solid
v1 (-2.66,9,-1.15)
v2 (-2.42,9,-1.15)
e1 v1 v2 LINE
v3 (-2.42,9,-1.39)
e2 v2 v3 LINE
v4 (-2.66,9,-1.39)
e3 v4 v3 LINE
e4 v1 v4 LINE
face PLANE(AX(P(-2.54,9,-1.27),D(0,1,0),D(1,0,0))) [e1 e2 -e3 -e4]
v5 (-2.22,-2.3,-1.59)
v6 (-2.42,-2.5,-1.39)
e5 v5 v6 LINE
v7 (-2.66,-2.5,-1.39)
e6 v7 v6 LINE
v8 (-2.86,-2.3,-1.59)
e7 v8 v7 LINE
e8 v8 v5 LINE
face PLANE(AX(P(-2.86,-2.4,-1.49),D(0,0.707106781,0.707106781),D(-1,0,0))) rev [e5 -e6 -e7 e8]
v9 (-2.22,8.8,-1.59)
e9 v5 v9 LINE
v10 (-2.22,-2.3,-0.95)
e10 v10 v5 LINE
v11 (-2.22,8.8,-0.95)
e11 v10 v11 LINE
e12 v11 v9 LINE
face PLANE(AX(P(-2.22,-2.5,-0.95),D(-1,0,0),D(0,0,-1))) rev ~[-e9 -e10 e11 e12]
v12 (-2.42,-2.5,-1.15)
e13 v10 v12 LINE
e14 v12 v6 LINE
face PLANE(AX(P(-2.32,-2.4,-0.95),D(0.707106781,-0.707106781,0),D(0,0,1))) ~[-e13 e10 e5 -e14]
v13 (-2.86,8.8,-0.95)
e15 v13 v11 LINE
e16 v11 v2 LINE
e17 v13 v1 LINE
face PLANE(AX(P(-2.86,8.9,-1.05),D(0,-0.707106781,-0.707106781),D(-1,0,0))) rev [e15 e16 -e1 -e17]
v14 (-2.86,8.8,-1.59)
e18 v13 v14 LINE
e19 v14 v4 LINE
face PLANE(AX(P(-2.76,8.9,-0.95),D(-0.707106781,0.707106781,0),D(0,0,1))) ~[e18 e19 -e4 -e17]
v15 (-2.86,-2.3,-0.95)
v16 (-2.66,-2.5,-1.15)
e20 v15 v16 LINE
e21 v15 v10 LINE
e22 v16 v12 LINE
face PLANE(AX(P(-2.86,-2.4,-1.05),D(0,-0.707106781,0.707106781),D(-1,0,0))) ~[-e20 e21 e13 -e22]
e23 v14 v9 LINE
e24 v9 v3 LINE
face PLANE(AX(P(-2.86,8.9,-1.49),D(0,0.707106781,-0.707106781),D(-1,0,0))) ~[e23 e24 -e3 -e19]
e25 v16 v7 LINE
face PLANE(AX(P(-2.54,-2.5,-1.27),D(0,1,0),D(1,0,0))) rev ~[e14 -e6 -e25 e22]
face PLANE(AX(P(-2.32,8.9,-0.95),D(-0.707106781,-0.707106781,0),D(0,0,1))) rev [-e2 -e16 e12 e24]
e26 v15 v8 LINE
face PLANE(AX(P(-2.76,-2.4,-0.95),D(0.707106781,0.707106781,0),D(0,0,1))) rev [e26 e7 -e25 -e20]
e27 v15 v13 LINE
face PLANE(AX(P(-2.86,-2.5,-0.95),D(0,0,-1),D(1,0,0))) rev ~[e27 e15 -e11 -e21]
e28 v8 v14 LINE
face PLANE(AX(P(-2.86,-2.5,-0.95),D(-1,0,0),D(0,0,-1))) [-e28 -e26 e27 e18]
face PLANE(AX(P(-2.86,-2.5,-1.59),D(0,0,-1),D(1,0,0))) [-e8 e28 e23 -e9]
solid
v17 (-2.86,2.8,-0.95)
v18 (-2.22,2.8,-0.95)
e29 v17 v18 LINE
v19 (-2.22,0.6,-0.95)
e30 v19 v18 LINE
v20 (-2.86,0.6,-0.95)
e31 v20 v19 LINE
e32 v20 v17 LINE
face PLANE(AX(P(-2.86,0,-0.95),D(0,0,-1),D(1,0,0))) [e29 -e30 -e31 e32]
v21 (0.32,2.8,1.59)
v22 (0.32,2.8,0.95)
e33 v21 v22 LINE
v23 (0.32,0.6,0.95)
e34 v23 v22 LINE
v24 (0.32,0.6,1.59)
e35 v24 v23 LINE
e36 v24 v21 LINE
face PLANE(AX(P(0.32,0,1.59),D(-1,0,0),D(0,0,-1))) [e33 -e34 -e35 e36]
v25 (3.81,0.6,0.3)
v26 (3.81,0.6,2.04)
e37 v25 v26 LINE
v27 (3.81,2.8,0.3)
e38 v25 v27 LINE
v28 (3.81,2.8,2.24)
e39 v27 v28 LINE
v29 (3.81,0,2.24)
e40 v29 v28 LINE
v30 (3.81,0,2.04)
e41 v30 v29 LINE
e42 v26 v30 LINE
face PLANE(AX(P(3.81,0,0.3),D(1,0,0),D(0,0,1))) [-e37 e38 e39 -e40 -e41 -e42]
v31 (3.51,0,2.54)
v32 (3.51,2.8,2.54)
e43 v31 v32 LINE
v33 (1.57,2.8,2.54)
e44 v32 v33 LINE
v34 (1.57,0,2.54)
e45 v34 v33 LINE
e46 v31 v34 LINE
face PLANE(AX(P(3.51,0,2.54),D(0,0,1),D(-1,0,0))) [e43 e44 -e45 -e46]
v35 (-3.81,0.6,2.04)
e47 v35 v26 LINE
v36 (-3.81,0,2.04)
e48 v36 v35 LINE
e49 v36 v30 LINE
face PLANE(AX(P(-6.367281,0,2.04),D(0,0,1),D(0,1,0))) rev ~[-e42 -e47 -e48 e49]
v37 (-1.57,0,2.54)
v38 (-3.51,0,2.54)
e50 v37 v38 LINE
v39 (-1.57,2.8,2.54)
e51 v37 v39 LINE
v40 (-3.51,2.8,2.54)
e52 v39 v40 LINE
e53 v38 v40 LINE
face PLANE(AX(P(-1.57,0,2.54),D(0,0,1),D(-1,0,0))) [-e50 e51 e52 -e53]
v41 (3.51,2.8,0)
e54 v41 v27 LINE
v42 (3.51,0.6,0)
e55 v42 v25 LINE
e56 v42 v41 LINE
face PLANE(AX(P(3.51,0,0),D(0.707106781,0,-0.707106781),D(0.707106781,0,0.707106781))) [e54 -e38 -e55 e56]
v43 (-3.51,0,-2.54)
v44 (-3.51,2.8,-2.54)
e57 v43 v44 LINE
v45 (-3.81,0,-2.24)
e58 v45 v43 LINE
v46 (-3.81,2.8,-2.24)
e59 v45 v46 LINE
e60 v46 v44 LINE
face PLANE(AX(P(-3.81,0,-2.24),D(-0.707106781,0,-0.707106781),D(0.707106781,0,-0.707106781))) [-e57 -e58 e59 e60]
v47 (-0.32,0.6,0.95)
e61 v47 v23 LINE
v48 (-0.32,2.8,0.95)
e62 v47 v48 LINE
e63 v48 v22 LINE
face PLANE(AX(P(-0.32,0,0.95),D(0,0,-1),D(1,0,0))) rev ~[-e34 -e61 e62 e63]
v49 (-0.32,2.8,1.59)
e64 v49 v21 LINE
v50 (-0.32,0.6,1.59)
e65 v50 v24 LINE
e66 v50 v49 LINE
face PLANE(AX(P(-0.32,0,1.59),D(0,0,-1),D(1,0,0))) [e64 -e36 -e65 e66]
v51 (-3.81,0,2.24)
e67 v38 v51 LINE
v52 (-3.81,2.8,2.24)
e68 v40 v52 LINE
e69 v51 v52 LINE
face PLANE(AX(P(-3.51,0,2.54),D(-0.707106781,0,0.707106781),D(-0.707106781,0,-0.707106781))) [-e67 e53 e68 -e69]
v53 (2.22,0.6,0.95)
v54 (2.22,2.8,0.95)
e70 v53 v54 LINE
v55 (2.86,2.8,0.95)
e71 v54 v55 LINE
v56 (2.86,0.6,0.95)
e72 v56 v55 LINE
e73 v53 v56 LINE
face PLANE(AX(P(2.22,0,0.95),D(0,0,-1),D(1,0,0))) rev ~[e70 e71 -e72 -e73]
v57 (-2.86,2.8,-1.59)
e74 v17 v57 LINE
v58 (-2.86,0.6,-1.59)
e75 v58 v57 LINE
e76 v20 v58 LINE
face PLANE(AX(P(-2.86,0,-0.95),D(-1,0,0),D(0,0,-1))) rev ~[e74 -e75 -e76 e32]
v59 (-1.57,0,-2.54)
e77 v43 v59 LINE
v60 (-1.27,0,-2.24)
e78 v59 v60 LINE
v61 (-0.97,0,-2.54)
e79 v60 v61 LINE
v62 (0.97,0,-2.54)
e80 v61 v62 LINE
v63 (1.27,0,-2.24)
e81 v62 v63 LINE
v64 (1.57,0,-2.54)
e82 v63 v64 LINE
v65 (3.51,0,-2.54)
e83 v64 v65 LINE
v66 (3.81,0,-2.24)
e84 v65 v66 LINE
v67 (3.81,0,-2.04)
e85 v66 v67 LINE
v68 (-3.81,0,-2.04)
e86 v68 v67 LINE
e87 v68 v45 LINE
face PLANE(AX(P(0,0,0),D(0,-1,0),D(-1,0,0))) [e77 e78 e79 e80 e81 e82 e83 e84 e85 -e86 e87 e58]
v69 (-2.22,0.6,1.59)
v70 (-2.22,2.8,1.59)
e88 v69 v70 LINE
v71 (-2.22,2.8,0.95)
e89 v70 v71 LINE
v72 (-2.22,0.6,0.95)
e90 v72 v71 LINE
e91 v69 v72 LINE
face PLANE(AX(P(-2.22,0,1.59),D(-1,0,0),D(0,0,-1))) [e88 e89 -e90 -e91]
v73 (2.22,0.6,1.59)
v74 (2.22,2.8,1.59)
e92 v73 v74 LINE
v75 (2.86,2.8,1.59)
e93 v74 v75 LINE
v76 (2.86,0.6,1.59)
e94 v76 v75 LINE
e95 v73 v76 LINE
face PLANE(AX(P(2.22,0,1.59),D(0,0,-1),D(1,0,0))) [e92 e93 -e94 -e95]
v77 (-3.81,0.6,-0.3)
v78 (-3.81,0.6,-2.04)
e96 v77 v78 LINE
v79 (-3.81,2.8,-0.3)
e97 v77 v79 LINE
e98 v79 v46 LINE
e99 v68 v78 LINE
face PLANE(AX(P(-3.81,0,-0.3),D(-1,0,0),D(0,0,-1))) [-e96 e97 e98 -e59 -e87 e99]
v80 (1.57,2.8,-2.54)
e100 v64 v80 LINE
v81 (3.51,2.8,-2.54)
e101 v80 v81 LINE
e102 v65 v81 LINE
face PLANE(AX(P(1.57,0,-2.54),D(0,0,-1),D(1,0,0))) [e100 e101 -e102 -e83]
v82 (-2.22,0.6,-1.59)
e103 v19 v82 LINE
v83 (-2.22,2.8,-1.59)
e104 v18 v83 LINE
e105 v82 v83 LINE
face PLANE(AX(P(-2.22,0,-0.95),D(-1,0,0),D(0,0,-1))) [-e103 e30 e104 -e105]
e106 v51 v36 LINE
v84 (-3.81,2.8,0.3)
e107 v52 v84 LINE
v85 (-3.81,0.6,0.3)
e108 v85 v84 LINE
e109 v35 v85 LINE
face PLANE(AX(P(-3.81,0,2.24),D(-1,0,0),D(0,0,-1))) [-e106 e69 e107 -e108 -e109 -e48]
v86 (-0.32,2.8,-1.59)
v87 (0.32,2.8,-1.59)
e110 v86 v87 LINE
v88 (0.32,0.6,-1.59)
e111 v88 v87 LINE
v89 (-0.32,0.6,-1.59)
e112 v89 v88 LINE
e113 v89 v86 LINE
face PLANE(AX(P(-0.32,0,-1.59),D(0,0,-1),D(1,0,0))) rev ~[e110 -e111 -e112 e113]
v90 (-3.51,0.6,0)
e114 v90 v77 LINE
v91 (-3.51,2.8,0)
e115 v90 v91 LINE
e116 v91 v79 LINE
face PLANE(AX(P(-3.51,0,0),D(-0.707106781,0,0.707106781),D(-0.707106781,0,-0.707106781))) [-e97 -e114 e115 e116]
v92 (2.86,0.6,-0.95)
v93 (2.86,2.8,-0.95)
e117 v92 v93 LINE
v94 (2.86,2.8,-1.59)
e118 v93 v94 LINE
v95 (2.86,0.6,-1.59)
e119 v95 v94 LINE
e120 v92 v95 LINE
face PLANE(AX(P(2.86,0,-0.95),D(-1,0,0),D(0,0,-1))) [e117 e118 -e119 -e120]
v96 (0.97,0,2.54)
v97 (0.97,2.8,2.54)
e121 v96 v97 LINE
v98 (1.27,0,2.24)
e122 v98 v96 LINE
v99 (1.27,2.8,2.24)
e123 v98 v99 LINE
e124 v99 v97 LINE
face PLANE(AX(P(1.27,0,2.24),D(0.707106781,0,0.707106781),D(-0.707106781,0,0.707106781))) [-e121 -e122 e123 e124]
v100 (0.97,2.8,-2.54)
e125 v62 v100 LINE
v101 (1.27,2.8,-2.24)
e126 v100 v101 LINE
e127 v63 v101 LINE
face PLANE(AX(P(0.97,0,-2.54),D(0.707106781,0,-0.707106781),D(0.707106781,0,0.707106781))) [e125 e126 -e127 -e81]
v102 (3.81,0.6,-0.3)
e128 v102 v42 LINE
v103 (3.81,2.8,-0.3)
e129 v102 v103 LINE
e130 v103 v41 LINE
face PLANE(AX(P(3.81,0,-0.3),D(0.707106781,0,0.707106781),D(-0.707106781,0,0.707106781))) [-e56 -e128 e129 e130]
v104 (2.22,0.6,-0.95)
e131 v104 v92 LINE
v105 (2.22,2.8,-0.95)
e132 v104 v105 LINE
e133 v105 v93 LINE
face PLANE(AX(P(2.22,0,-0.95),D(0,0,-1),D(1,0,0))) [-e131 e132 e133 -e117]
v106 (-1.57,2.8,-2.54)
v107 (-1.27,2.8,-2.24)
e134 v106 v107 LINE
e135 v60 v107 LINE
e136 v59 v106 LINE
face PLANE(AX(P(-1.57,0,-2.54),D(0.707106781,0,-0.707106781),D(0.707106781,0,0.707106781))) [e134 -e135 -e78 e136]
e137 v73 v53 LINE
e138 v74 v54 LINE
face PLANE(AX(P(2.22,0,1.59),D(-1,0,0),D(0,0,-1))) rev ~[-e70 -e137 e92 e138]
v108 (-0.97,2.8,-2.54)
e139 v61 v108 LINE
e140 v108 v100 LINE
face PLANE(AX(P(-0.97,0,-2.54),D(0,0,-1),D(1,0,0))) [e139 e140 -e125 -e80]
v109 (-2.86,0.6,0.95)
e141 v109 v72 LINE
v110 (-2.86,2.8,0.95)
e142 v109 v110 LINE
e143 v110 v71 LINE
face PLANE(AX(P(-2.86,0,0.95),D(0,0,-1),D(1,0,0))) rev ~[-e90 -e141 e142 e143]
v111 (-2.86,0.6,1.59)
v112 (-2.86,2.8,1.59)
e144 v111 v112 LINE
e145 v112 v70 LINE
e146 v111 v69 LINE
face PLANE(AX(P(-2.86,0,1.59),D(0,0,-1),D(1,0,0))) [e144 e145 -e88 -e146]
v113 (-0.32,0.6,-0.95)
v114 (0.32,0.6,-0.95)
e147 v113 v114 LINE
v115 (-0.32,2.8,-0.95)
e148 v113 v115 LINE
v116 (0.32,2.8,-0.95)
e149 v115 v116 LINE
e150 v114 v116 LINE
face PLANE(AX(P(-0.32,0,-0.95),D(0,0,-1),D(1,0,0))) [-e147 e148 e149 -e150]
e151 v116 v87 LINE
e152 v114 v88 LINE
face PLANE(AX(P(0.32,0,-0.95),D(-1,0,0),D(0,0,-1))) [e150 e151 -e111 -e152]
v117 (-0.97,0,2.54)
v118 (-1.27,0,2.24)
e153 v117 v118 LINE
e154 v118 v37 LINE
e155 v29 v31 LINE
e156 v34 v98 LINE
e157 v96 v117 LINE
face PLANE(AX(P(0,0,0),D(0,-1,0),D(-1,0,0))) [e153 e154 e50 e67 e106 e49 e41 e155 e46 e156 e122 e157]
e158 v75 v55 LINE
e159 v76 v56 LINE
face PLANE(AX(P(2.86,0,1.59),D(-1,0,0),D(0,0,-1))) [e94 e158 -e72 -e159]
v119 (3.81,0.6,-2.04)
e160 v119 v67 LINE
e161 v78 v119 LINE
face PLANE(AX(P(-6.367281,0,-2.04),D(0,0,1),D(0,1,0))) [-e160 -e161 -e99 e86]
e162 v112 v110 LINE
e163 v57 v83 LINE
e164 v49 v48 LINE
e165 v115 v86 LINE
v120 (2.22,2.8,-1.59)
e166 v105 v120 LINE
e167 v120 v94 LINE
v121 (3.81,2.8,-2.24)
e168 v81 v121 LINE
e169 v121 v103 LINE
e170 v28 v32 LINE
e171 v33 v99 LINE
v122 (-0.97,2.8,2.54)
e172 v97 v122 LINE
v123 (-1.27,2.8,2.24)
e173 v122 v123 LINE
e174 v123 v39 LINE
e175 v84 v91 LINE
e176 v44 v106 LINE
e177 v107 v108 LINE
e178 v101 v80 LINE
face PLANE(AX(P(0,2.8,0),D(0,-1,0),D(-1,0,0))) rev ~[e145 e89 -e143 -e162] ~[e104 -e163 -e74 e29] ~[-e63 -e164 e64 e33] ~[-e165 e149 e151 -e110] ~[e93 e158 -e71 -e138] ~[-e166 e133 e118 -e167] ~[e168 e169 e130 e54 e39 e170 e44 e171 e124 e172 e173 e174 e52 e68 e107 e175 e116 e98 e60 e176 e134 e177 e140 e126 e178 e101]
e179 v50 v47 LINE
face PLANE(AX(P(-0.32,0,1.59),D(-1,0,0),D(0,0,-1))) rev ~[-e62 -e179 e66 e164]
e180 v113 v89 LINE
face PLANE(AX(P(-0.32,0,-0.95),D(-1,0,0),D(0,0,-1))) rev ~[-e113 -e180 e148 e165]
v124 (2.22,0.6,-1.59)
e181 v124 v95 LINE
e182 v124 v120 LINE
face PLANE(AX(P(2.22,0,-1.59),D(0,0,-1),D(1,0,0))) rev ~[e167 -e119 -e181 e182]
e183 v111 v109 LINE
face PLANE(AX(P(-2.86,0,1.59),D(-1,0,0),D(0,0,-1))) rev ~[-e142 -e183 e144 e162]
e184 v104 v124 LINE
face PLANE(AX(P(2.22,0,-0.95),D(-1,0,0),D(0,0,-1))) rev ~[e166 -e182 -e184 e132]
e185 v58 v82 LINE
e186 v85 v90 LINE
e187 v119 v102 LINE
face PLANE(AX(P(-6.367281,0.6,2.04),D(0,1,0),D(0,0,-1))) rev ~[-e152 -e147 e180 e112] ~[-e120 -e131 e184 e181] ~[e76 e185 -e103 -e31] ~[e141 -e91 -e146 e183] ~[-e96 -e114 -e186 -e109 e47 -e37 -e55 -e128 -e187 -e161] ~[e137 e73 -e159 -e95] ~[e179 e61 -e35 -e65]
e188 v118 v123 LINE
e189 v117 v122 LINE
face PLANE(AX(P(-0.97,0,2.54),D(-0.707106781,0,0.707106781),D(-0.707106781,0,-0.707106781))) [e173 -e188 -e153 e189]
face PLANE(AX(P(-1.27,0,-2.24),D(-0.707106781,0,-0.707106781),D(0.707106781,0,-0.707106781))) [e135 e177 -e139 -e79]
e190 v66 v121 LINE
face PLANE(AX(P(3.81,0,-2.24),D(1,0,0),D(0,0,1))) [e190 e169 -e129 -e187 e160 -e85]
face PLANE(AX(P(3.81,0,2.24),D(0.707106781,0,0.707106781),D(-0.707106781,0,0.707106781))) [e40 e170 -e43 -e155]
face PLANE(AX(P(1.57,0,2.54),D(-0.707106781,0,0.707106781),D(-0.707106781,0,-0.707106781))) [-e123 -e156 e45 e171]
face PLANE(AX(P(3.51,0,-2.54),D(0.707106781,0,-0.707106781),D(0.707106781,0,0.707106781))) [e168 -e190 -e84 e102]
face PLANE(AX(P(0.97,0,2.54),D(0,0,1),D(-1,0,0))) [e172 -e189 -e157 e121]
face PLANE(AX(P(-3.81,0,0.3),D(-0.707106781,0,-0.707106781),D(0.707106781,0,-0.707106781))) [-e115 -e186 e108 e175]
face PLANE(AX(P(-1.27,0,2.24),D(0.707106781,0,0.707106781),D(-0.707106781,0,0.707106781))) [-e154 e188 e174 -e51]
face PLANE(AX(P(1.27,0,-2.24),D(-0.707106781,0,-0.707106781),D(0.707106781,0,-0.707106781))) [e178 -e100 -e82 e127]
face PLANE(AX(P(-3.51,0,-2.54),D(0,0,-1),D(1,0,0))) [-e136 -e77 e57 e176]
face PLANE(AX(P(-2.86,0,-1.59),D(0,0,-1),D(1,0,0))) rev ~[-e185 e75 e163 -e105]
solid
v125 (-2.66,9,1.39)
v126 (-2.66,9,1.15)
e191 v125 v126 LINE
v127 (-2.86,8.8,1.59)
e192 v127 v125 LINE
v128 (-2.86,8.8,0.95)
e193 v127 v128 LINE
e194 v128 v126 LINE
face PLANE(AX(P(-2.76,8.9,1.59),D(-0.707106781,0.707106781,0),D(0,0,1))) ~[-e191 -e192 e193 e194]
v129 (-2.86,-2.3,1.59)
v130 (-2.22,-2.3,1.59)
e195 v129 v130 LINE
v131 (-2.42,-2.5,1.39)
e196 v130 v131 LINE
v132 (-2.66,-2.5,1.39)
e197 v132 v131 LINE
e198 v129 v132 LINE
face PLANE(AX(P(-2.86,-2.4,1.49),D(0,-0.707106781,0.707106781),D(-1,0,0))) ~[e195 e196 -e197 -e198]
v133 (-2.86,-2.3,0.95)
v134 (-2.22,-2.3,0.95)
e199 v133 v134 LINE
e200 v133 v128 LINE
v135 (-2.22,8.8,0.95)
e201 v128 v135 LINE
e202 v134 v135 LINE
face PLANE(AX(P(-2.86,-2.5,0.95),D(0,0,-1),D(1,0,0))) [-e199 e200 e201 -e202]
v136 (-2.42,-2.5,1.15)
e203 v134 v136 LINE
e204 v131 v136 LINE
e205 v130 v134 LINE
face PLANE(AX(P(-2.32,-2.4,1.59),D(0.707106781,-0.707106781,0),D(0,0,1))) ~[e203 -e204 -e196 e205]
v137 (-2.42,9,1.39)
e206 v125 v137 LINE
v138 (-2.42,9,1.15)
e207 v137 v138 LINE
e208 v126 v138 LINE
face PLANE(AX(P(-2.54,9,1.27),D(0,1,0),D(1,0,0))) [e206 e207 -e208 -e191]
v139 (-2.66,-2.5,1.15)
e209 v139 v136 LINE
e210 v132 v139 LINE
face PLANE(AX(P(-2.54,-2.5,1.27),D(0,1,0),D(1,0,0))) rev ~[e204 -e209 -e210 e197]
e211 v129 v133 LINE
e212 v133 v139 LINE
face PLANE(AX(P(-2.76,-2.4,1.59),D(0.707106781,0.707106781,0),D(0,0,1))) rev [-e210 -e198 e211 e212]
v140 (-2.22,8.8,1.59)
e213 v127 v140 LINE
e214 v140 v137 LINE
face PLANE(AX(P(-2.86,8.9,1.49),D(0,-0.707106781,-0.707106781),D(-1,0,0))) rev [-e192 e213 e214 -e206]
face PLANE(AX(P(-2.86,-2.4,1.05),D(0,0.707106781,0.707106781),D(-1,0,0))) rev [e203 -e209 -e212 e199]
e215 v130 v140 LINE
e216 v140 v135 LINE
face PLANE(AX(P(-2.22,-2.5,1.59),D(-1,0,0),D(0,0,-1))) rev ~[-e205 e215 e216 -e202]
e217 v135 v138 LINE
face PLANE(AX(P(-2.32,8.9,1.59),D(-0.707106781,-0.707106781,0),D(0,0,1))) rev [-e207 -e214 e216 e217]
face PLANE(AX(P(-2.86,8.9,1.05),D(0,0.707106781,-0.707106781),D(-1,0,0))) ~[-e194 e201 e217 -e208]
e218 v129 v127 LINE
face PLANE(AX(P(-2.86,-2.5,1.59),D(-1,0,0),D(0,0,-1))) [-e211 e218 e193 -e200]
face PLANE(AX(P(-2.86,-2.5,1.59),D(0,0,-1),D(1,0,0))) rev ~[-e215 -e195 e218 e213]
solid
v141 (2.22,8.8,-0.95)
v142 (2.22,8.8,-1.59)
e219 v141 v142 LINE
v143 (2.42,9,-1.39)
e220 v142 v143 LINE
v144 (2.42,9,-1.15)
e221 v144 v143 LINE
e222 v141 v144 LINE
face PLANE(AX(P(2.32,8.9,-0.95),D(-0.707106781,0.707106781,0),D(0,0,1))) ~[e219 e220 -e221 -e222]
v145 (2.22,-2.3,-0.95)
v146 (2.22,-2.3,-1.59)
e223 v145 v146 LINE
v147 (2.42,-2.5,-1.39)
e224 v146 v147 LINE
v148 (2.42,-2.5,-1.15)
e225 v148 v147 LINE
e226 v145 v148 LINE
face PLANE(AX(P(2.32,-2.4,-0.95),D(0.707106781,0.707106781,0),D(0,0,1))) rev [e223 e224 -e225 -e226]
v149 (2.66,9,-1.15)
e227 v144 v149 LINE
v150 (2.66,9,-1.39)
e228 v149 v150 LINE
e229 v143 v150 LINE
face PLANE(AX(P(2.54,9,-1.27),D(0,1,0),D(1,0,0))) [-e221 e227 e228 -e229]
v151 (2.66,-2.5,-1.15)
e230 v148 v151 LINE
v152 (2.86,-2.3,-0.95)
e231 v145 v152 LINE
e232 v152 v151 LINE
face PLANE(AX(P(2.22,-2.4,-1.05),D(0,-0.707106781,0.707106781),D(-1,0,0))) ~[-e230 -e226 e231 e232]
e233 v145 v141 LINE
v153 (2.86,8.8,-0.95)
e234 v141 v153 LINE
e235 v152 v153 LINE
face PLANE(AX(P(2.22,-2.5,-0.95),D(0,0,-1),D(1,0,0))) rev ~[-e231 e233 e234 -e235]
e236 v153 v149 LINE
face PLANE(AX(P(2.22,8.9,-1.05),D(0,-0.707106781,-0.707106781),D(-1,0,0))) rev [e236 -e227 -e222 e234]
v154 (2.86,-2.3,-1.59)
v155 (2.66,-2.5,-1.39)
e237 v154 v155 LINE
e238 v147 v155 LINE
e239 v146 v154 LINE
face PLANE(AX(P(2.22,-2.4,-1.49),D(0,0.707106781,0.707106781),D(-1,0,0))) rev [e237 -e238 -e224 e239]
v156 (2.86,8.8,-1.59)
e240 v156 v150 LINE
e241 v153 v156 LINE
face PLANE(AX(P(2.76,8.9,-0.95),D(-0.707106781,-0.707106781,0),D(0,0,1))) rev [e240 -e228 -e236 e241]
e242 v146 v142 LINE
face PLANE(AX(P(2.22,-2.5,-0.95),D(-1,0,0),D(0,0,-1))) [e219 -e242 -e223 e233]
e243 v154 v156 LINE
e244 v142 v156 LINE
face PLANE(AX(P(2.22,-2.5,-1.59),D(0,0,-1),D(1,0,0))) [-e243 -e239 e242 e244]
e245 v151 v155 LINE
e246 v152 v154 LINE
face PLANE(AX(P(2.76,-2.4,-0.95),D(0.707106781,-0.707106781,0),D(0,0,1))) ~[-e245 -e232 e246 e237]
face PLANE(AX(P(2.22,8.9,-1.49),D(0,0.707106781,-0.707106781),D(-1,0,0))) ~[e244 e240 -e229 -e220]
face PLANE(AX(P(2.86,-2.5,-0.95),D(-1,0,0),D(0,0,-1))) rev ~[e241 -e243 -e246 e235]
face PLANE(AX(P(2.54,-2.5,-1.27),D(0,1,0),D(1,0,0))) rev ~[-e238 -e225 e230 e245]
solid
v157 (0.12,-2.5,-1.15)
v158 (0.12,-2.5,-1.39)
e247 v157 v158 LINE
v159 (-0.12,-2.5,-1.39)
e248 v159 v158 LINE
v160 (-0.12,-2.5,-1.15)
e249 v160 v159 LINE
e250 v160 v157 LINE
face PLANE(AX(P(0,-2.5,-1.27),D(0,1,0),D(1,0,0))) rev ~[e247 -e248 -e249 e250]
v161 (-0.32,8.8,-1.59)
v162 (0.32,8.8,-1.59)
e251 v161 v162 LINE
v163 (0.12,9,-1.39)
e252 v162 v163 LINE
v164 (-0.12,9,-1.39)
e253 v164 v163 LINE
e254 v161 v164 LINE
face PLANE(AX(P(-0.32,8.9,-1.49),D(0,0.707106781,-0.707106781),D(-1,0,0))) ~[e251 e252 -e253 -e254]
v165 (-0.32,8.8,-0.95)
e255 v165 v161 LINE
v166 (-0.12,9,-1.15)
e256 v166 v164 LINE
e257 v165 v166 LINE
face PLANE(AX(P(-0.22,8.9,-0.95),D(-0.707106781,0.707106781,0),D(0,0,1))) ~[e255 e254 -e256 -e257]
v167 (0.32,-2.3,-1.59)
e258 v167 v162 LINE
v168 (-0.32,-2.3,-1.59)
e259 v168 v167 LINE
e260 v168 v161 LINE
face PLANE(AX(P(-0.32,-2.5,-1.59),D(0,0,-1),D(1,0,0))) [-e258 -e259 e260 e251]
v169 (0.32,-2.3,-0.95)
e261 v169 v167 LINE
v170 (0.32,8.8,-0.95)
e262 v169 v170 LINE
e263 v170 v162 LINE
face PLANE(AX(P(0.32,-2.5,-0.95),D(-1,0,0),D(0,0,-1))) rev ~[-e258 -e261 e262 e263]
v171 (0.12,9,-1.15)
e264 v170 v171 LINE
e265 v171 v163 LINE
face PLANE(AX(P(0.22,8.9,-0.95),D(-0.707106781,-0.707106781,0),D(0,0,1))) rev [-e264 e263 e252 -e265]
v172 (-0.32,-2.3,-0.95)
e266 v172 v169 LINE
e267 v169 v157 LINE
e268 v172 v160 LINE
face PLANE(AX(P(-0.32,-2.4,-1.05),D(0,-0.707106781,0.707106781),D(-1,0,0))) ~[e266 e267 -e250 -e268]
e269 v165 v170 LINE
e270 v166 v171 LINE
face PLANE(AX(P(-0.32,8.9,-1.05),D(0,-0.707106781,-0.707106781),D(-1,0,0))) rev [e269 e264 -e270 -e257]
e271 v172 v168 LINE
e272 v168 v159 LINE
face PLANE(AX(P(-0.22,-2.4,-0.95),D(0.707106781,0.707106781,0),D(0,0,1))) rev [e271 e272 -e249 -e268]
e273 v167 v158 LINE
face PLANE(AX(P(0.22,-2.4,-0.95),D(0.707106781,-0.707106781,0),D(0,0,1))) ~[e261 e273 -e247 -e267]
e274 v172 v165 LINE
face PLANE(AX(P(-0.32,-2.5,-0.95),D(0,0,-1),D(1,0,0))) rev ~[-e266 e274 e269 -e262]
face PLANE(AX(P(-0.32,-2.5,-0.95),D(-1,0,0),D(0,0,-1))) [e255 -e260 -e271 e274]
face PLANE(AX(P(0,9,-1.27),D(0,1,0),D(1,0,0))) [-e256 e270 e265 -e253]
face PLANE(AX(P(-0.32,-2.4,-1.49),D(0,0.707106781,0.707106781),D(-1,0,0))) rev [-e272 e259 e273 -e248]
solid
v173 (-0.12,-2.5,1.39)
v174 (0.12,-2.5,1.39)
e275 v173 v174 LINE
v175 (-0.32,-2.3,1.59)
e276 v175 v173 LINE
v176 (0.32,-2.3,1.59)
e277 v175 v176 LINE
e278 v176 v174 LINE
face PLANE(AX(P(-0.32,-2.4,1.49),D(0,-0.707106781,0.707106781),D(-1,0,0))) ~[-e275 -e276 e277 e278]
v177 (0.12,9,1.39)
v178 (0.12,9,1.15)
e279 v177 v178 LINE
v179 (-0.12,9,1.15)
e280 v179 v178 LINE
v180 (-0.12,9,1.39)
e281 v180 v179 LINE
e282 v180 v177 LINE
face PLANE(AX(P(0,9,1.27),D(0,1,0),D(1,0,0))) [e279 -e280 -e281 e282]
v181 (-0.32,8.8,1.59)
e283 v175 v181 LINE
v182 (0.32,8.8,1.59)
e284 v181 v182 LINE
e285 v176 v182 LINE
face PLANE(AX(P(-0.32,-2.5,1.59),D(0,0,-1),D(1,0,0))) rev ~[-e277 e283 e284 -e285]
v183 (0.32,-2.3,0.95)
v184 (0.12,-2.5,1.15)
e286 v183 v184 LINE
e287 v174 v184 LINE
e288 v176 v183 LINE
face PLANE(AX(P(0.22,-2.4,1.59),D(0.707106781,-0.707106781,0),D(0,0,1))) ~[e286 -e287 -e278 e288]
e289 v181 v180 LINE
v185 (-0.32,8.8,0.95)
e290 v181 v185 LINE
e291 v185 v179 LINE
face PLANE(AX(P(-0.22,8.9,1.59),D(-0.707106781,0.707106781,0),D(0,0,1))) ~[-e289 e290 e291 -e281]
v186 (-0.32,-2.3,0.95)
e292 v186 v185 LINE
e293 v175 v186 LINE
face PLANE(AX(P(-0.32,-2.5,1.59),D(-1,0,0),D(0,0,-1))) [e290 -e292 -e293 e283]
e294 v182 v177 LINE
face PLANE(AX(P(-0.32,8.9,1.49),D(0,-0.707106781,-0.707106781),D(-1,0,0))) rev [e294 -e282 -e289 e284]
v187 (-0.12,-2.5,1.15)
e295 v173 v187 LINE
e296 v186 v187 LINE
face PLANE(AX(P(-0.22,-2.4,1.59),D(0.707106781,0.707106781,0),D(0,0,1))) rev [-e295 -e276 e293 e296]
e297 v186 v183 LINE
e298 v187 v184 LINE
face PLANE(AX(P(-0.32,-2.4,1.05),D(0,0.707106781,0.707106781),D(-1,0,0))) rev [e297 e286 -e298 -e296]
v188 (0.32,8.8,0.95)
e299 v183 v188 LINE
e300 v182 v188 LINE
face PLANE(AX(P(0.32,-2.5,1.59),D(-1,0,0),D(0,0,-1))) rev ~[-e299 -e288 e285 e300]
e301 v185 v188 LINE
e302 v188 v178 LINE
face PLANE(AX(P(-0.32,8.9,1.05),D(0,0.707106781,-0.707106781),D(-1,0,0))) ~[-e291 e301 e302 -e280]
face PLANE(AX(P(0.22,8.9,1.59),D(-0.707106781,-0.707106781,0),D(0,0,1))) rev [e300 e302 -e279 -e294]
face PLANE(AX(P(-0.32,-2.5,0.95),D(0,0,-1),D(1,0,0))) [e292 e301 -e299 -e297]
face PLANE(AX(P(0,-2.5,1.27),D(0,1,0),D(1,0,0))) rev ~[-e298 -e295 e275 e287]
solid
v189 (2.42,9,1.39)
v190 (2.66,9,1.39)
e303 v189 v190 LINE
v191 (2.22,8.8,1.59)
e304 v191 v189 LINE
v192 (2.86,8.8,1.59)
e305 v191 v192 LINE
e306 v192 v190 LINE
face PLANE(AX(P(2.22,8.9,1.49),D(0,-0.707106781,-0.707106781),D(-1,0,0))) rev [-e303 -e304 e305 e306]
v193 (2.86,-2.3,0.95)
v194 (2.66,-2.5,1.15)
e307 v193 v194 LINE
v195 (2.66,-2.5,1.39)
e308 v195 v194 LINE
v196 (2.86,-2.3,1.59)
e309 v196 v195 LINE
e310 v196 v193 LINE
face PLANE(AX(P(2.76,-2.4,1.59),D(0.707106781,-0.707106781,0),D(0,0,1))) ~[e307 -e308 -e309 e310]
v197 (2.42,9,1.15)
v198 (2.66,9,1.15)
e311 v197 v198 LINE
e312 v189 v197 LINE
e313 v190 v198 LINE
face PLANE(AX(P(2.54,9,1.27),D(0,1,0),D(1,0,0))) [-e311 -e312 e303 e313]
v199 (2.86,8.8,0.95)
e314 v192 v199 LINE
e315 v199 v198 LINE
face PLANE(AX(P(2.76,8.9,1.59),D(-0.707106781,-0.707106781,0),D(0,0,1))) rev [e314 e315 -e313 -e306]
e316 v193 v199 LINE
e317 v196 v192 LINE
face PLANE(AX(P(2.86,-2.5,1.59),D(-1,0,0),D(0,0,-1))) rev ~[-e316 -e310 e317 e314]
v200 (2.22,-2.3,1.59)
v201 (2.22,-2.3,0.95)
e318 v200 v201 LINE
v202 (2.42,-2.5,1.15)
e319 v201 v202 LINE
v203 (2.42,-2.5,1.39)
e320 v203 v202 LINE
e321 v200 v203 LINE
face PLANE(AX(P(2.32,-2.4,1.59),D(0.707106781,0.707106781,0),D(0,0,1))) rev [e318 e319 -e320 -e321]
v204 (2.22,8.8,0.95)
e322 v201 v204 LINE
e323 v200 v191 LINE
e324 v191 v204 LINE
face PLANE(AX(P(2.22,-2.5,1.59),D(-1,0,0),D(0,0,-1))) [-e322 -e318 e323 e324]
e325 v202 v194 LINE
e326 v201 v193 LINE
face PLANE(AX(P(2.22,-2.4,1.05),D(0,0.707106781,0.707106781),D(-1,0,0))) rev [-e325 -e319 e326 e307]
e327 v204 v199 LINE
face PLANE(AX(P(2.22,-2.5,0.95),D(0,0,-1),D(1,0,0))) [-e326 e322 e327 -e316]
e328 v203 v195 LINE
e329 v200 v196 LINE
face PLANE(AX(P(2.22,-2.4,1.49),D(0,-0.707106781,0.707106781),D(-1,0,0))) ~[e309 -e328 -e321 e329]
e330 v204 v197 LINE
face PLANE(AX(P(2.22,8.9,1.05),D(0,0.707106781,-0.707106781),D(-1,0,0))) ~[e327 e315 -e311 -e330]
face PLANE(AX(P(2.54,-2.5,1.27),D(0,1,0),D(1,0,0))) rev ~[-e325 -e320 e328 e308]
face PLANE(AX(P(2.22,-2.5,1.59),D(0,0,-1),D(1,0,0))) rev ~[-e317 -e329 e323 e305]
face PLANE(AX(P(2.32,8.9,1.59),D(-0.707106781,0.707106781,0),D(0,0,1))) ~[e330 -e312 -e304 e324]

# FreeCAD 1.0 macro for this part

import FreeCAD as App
import Part
import Sketcher

V = App.Vector
Q = App.Units.Quantity


def edges_at(feature, points):
    """Names of the edges that pass closest to the given points."""
    edges = feature.Shape.Edges
    near = lambda p: min(range(len(edges)), key=lambda i: edges[i].distToShape(Part.Vertex(*p))[0])
    return sorted({f"Edge{near(p) + 1}" for p in points})


def add_polygon(sketch, points):
    """Adds a closed chain of lines whose ends are joined by coincident constraints."""
    first, n = sketch.GeometryCount, len(points)
    for a, b in zip(points, points[1:] + points[:1]):
        sketch.addGeometry(Part.LineSegment(App.Vector(*a, 0), App.Vector(*b, 0)), False)
    for i in range(n):
        sketch.addConstraint(Sketcher.Constraint("Coincident", first + i, 2, first + (i + 1) % n, 1))

doc = App.newDocument("Part")
params = doc.addObject("Spreadsheet::Sheet", "Params")
for row, (alias, value) in enumerate([
    ("sketch1_width", "1.94 mm"),
    ("sketch1_width2", "0.64 mm"),
    ("pad1_length", "2.8 mm"),
    ("sketch2_width", "0.6 mm"),
    ("sketch2_height", "4.08 mm"),
    ("sketch3_width", "0.64 mm"),
    ("pad2_length", "9 mm"),
    ("pad2_length2", "2.5 mm"),
    ("chamfer_size", "0.2 mm"),
    ("sketch4_width", "0.64 mm"),
    ("pad3_length", "9 mm"),
    ("pad3_length2", "2.5 mm"),
    ("chamfer2_size", "0.2 mm"),
    ("sketch5_width", "0.64 mm"),
    ("pad4_length", "9 mm"),
    ("pad4_length2", "2.5 mm"),
    ("chamfer3_size", "0.2 mm"),
    ("sketch6_width", "0.64 mm"),
    ("pad5_length", "9 mm"),
    ("pad5_length2", "2.5 mm"),
    ("chamfer4_size", "0.2 mm"),
    ("sketch7_width", "0.64 mm"),
    ("pad6_length", "9 mm"),
    ("pad6_length2", "2.5 mm"),
    ("chamfer5_size", "0.2 mm"),
    ("sketch8_width", "0.64 mm"),
    ("pad7_length", "9 mm"),
    ("pad7_length2", "2.5 mm"),
    ("chamfer6_size", "0.2 mm"),
], start=1):
    params.set(f"A{row}", alias)
    params.set(f"B{row}", "=" + value)
    params.setAlias(f"B{row}", alias)

body = doc.addObject("PartDesign::Body", "Body")

# Sketch on XZ plane
sketch1 = body.newObject("Sketcher::SketchObject", "Sketch")
sketch1.AttachmentSupport = (doc.getObject("XZ_Plane"), [""])
sketch1.MapMode = "FlatFace"
add_polygon(sketch1, [(-3.51, -2.54), (-3.81, -2.24), (-3.81, -0.3), (-3.51, 0), (-3.81, 0.3), (-3.81, 2.24), (-3.51, 2.54), (-1.57, 2.54), (-1.27, 2.24), (-0.97, 2.54), (0.97, 2.54), (1.27, 2.24), (1.57, 2.54), (3.51, 2.54), (3.81, 2.24), (3.81, 0.3), (3.51, 0), (3.81, -0.3), (3.81, -2.24), (3.51, -2.54), (1.57, -2.54), (1.27, -2.24), (0.97, -2.54), (-0.97, -2.54), (-1.27, -2.24), (-1.57, -2.54)])  # lines 0-25
add_polygon(sketch1, [(2.22, 1.59), (2.22, 0.95), (2.86, 0.95), (2.86, 1.59)])  # lines 26-29
add_polygon(sketch1, [(-0.32, 1.59), (-0.32, 0.95), (0.32, 0.95), (0.32, 1.59)])  # lines 30-33
add_polygon(sketch1, [(-2.86, 1.59), (-2.86, 0.95), (-2.22, 0.95), (-2.22, 1.59)])  # lines 34-37
add_polygon(sketch1, [(2.22, -0.95), (2.22, -1.59), (2.86, -1.59), (2.86, -0.95)])  # lines 38-41
add_polygon(sketch1, [(-0.32, -0.95), (-0.32, -1.59), (0.32, -1.59), (0.32, -0.95)])  # lines 42-45
add_polygon(sketch1, [(-2.86, -0.95), (-2.86, -1.59), (-2.22, -1.59), (-2.22, -0.95)])  # lines 46-49
sketch1.addConstraint(Sketcher.Constraint("Vertical", 1))
sketch1.addConstraint(Sketcher.Constraint("Vertical", 4))
sketch1.addConstraint(Sketcher.Constraint("Horizontal", 6))
sketch1.addConstraint(Sketcher.Constraint("Horizontal", 9))
sketch1.addConstraint(Sketcher.Constraint("Horizontal", 12))
sketch1.addConstraint(Sketcher.Constraint("Vertical", 14))
sketch1.addConstraint(Sketcher.Constraint("Vertical", 17))
sketch1.addConstraint(Sketcher.Constraint("Horizontal", 19))
sketch1.addConstraint(Sketcher.Constraint("Horizontal", 22))
sketch1.addConstraint(Sketcher.Constraint("Horizontal", 25))
sketch1.addConstraint(Sketcher.Constraint("Vertical", 26))
sketch1.addConstraint(Sketcher.Constraint("Horizontal", 27))
sketch1.addConstraint(Sketcher.Constraint("Vertical", 28))
sketch1.addConstraint(Sketcher.Constraint("Horizontal", 29))
sketch1.addConstraint(Sketcher.Constraint("Vertical", 30))
sketch1.addConstraint(Sketcher.Constraint("Horizontal", 31))
sketch1.addConstraint(Sketcher.Constraint("Vertical", 32))
sketch1.addConstraint(Sketcher.Constraint("Horizontal", 33))
sketch1.addConstraint(Sketcher.Constraint("Vertical", 34))
sketch1.addConstraint(Sketcher.Constraint("Horizontal", 35))
sketch1.addConstraint(Sketcher.Constraint("Vertical", 36))
sketch1.addConstraint(Sketcher.Constraint("Horizontal", 37))
sketch1.addConstraint(Sketcher.Constraint("Vertical", 38))
sketch1.addConstraint(Sketcher.Constraint("Horizontal", 39))
sketch1.addConstraint(Sketcher.Constraint("Vertical", 40))
sketch1.addConstraint(Sketcher.Constraint("Horizontal", 41))
sketch1.addConstraint(Sketcher.Constraint("Vertical", 42))
sketch1.addConstraint(Sketcher.Constraint("Horizontal", 43))
sketch1.addConstraint(Sketcher.Constraint("Vertical", 44))
sketch1.addConstraint(Sketcher.Constraint("Horizontal", 45))
sketch1.addConstraint(Sketcher.Constraint("Vertical", 46))
sketch1.addConstraint(Sketcher.Constraint("Horizontal", 47))
sketch1.addConstraint(Sketcher.Constraint("Vertical", 48))
sketch1.addConstraint(Sketcher.Constraint("Horizontal", 49))
sketch1.addConstraint(Sketcher.Constraint("Symmetric", 0, 2, 13, 2, -1, 1))
sketch1.addConstraint(Sketcher.Constraint("Symmetric", 2, 2, 15, 2, -1, 1))
sketch1.addConstraint(Sketcher.Constraint("Symmetric", 3, 2, 16, 2, -1, 1))
sketch1.addConstraint(Sketcher.Constraint("Symmetric", 5, 2, 18, 2, -1, 1))
sketch1.addConstraint(Sketcher.Constraint("Symmetric", 7, 2, 20, 2, -1, 1))
sketch1.addConstraint(Sketcher.Constraint("Symmetric", 8, 2, 21, 2, -1, 1))
sketch1.addConstraint(Sketcher.Constraint("Symmetric", 10, 2, 23, 2, -1, 1))
sketch1.addConstraint(Sketcher.Constraint("Symmetric", 11, 2, 24, 2, -1, 1))
sketch1.addConstraint(Sketcher.Constraint("Symmetric", 36, 2, 38, 2, -1, 1))
sketch1.addConstraint(Sketcher.Constraint("Symmetric", 34, 2, 40, 2, -1, 1))
sketch1.addConstraint(Sketcher.Constraint("Symmetric", 32, 2, 42, 2, -1, 1))
sketch1.addConstraint(Sketcher.Constraint("Symmetric", 30, 2, 44, 2, -1, 1))
sketch1.addConstraint(Sketcher.Constraint("Symmetric", 28, 2, 46, 2, -1, 1))
sketch1.addConstraint(Sketcher.Constraint("Symmetric", 26, 2, 48, 2, -1, 1))
sketch1.addConstraint(Sketcher.Constraint("Symmetric", 7, 2, 10, 2, -2))
sketch1.addConstraint(Sketcher.Constraint("Symmetric", 6, 2, 11, 2, -2))
sketch1.addConstraint(Sketcher.Constraint("Symmetric", 4, 2, 13, 2, -2))
sketch1.addConstraint(Sketcher.Constraint("Symmetric", 27, 2, 34, 2, -2))
sketch1.addConstraint(Sketcher.Constraint("Symmetric", 29, 2, 36, 2, -2))
sketch1.addConstraint(Sketcher.Constraint("PointOnObject", 2, 2, -1))
sketch1.addConstraint(Sketcher.Constraint("Perpendicular", 0, 2))
sketch1.addConstraint(Sketcher.Constraint("Perpendicular", 2, 3))
sketch1.addConstraint(Sketcher.Constraint("Perpendicular", 3, 5))
sketch1.addConstraint(Sketcher.Constraint("Perpendicular", 5, 7))
sketch1.addConstraint(Sketcher.Constraint("Perpendicular", 7, 8))
sketch1.addConstraint(Sketcher.Constraint("Perpendicular", 8, 10))
sketch1.addConstraint(Sketcher.Constraint("Perpendicular", 10, 11))
sketch1.addConstraint(Sketcher.Constraint("Perpendicular", 11, 13))
sketch1.addConstraint(Sketcher.Constraint("Perpendicular", 13, 15))
sketch1.addConstraint(Sketcher.Constraint("Perpendicular", 16, 18))
sketch1.addConstraint(Sketcher.Constraint("Perpendicular", 18, 20))
sketch1.addConstraint(Sketcher.Constraint("Perpendicular", 21, 23))
sketch1.addConstraint(Sketcher.Constraint("Horizontal", 4, 2, 7, 2))
sketch1.addConstraint(Sketcher.Constraint("Horizontal", 6, 2, 8, 2))
sketch1.addConstraint(Sketcher.Constraint("Horizontal", 27, 2, 30, 2))
sketch1.addConstraint(Sketcher.Constraint("Horizontal", 29, 2, 32, 2))
sketch1.addConstraint(Sketcher.Constraint("Vertical", 2, 2, 5, 2))
sketch1.addConstraint(Sketcher.Constraint("Vertical", 33, 2, 42, 2))
sketch1.addConstraint(Sketcher.Constraint("Equal", 6, 9))
sketch1.addConstraint(Sketcher.Constraint("Equal", 29, 31))
sketch1.addConstraint(Sketcher.Constraint("Equal", 25, 1))
sketch1.addConstraint(Sketcher.Constraint("Equal", 49, 26))
sketch1.addConstraint(Sketcher.Constraint("DistanceX", 6, 1, 6, 2, Q("1.94 mm")))
sketch1.addConstraint(Sketcher.Constraint("DistanceX", 27, 1, 27, 2, Q("0.64 mm")))
sketch1.addConstraint(Sketcher.Constraint("DistanceY", 1, 2, -1, 1, Q("0.3 mm")))
sketch1.addConstraint(Sketcher.Constraint("DistanceX", 31, 2, 26, 2, Q("1.9 mm")))
sketch1.addConstraint(Sketcher.Constraint("DistanceY", 44, 2, 31, 2, Q("1.9 mm")))
sketch1.setExpression("Constraints[126]", "Params.sketch1_width")
sketch1.setExpression("Constraints[127]", "Params.sketch1_width2")
pad1 = body.newObject("PartDesign::Pad", "Pad")
pad1.Profile = sketch1
pad1.setExpression("Length", "Params.pad1_length")
pad1.Reversed = True

# Sketch on YZ plane
sketch2 = body.newObject("Sketcher::SketchObject", "Sketch001")
sketch2.AttachmentSupport = (doc.getObject("YZ_Plane"), [""])
sketch2.MapMode = "FlatFace"
add_polygon(sketch2, [(0.6, 2), (0, 2), (0, -2), (0.6, -2)])  # lines 0-3
sketch2.addConstraint(Sketcher.Constraint("Horizontal", 0))
sketch2.addConstraint(Sketcher.Constraint("Vertical", 1))
sketch2.addConstraint(Sketcher.Constraint("Horizontal", 2))
sketch2.addConstraint(Sketcher.Constraint("Vertical", 3))
sketch2.addConstraint(Sketcher.Constraint("Symmetric", 0, 2, 1, 2, -1, 1))
sketch2.addConstraint(Sketcher.Constraint("DistanceX", 0, 2, 0, 1, Q("0.6 mm")))
sketch2.addConstraint(Sketcher.Constraint("DistanceY", 1, 2, 1, 1, Q("4.08 mm")))
sketch2.setExpression("Constraints[9]", "Params.sketch2_width")
sketch2.setExpression("Constraints[10]", "Params.sketch2_height")
pocket1 = body.newObject("PartDesign::Pocket", "Pocket")
pocket1.Profile = sketch2
pocket1.Type = "ThroughAll"
pocket1.Midplane = True
body2 = doc.addObject("PartDesign::Body", "Body001")

# Sketch on XZ plane
sketch3 = body2.newObject("Sketcher::SketchObject", "Sketch002")
sketch3.AttachmentSupport = (doc.getObject("XZ_Plane001"), [""])
sketch3.MapMode = "FlatFace"
add_polygon(sketch3, [(-2.9, -1.6), (-2.9, -0.9), (-2.2, -0.9), (-2.2, -1.6)])  # lines 0-3
sketch3.addConstraint(Sketcher.Constraint("Vertical", 0))
sketch3.addConstraint(Sketcher.Constraint("Horizontal", 1))
sketch3.addConstraint(Sketcher.Constraint("Vertical", 2))
sketch3.addConstraint(Sketcher.Constraint("Horizontal", 3))
sketch3.addConstraint(Sketcher.Constraint("Equal", 3, 0))
sketch3.addConstraint(Sketcher.Constraint("DistanceX", 1, 1, 1, 2, Q("0.64 mm")))
sketch3.addConstraint(Sketcher.Constraint("DistanceX", 0, 2, -1, 1, Q("2.86 mm")))
sketch3.addConstraint(Sketcher.Constraint("DistanceY", 0, 2, -1, 1, Q("0.95 mm")))
sketch3.setExpression("Constraints[9]", "Params.sketch3_width")
pad2 = body2.newObject("PartDesign::Pad", "Pad001")
pad2.Profile = sketch3
pad2.Type = "TwoLengths"
pad2.setExpression("Length", "Params.pad2_length")
pad2.setExpression("Length2", "Params.pad2_length2")
pad2.Reversed = True
doc.recompute()

chamfer = body2.newObject("PartDesign::Chamfer", "Chamfer")
chamfer.Base = (pad2, edges_at(pad2, [
    (-2.22, 9, -1.27),
    (-2.54, 9, -1.59),
    (-2.86, 9, -1.27),
    (-2.22, -2.5, -1.27),
    (-2.54, 9, -0.95),
    (-2.54, -2.5, -1.59),
    (-2.86, -2.5, -1.27),
    (-2.54, -2.5, -0.95),
]))
chamfer.setExpression("Size", "Params.chamfer_size")
body3 = doc.addObject("PartDesign::Body", "Body002")

# Sketch on XZ plane
sketch4 = body3.newObject("Sketcher::SketchObject", "Sketch003")
sketch4.AttachmentSupport = (doc.getObject("XZ_Plane002"), [""])
sketch4.MapMode = "FlatFace"
add_polygon(sketch4, [(-0.3, -1.6), (-0.3, -0.9), (0.3, -0.9), (0.3, -1.6)])  # lines 0-3
sketch4.addConstraint(Sketcher.Constraint("Vertical", 0))
sketch4.addConstraint(Sketcher.Constraint("Horizontal", 1))
sketch4.addConstraint(Sketcher.Constraint("Vertical", 2))
sketch4.addConstraint(Sketcher.Constraint("Horizontal", 3))
sketch4.addConstraint(Sketcher.Constraint("Equal", 3, 0))
sketch4.addConstraint(Sketcher.Constraint("DistanceX", 1, 1, 1, 2, Q("0.64 mm")))
sketch4.addConstraint(Sketcher.Constraint("DistanceX", 0, 2, -1, 1, Q("0.32 mm")))
sketch4.addConstraint(Sketcher.Constraint("DistanceY", 0, 2, -1, 1, Q("0.95 mm")))
sketch4.setExpression("Constraints[9]", "Params.sketch4_width")
pad3 = body3.newObject("PartDesign::Pad", "Pad002")
pad3.Profile = sketch4
pad3.Type = "TwoLengths"
pad3.setExpression("Length", "Params.pad3_length")
pad3.setExpression("Length2", "Params.pad3_length2")
pad3.Reversed = True
doc.recompute()

chamfer2 = body3.newObject("PartDesign::Chamfer", "Chamfer001")
chamfer2.Base = (pad3, edges_at(pad3, [
    (-0.32, 9, -1.27),
    (0, 9, -0.95),
    (0.32, 9, -1.27),
    (0, 9, -1.59),
    (-0.32, -2.5, -1.27),
    (0, -2.5, -0.95),
    (0.32, -2.5, -1.27),
    (0, -2.5, -1.59),
]))
chamfer2.setExpression("Size", "Params.chamfer2_size")
body4 = doc.addObject("PartDesign::Body", "Body003")

# Sketch on XZ plane
sketch5 = body4.newObject("Sketcher::SketchObject", "Sketch004")
sketch5.AttachmentSupport = (doc.getObject("XZ_Plane003"), [""])
sketch5.MapMode = "FlatFace"
add_polygon(sketch5, [(2.2, -1.6), (2.2, -0.9), (2.9, -0.9), (2.9, -1.6)])  # lines 0-3
sketch5.addConstraint(Sketcher.Constraint("Vertical", 0))
sketch5.addConstraint(Sketcher.Constraint("Horizontal", 1))
sketch5.addConstraint(Sketcher.Constraint("Vertical", 2))
sketch5.addConstraint(Sketcher.Constraint("Horizontal", 3))
sketch5.addConstraint(Sketcher.Constraint("Equal", 3, 0))
sketch5.addConstraint(Sketcher.Constraint("DistanceX", 1, 1, 1, 2, Q("0.64 mm")))
sketch5.addConstraint(Sketcher.Constraint("DistanceX", -1, 1, 0, 2, Q("2.22 mm")))
sketch5.addConstraint(Sketcher.Constraint("DistanceY", 0, 2, -1, 1, Q("0.95 mm")))
sketch5.setExpression("Constraints[9]", "Params.sketch5_width")
pad4 = body4.newObject("PartDesign::Pad", "Pad003")
pad4.Profile = sketch5
pad4.Type = "TwoLengths"
pad4.setExpression("Length", "Params.pad4_length")
pad4.setExpression("Length2", "Params.pad4_length2")
pad4.Reversed = True
doc.recompute()

chamfer3 = body4.newObject("PartDesign::Chamfer", "Chamfer002")
chamfer3.Base = (pad4, edges_at(pad4, [
    (2.22, 9, -1.27),
    (2.54, 9, -0.95),
    (2.86, 9, -1.27),
    (2.54, 9, -1.59),
    (2.22, -2.5, -1.27),
    (2.54, -2.5, -0.95),
    (2.86, -2.5, -1.27),
    (2.54, -2.5, -1.59),
]))
chamfer3.setExpression("Size", "Params.chamfer3_size")
body5 = doc.addObject("PartDesign::Body", "Body004")

# Sketch on XZ plane
sketch6 = body5.newObject("Sketcher::SketchObject", "Sketch005")
sketch6.AttachmentSupport = (doc.getObject("XZ_Plane004"), [""])
sketch6.MapMode = "FlatFace"
add_polygon(sketch6, [(-0.3, 0.9), (-0.3, 1.6), (0.3, 1.6), (0.3, 0.9)])  # lines 0-3
sketch6.addConstraint(Sketcher.Constraint("Vertical", 0))
sketch6.addConstraint(Sketcher.Constraint("Horizontal", 1))
sketch6.addConstraint(Sketcher.Constraint("Vertical", 2))
sketch6.addConstraint(Sketcher.Constraint("Horizontal", 3))
sketch6.addConstraint(Sketcher.Constraint("Equal", 3, 0))
sketch6.addConstraint(Sketcher.Constraint("DistanceX", 1, 1, 1, 2, Q("0.64 mm")))
sketch6.addConstraint(Sketcher.Constraint("DistanceX", 0, 2, -1, 1, Q("0.32 mm")))
sketch6.addConstraint(Sketcher.Constraint("DistanceY", -1, 1, 0, 2, Q("1.59 mm")))
sketch6.setExpression("Constraints[9]", "Params.sketch6_width")
pad5 = body5.newObject("PartDesign::Pad", "Pad004")
pad5.Profile = sketch6
pad5.Type = "TwoLengths"
pad5.setExpression("Length", "Params.pad5_length")
pad5.setExpression("Length2", "Params.pad5_length2")
pad5.Reversed = True
doc.recompute()

chamfer4 = body5.newObject("PartDesign::Chamfer", "Chamfer003")
chamfer4.Base = (pad5, edges_at(pad5, [
    (-0.32, 9, 1.27),
    (0, 9, 1.59),
    (0.32, 9, 1.27),
    (0, 9, 0.95),
    (-0.32, -2.5, 1.27),
    (0, -2.5, 1.59),
    (0.32, -2.5, 1.27),
    (0, -2.5, 0.95),
]))
chamfer4.setExpression("Size", "Params.chamfer4_size")
body6 = doc.addObject("PartDesign::Body", "Body005")

# Sketch on XZ plane
sketch7 = body6.newObject("Sketcher::SketchObject", "Sketch006")
sketch7.AttachmentSupport = (doc.getObject("XZ_Plane005"), [""])
sketch7.MapMode = "FlatFace"
add_polygon(sketch7, [(2.2, 0.9), (2.2, 1.6), (2.9, 1.6), (2.9, 0.9)])  # lines 0-3
sketch7.addConstraint(Sketcher.Constraint("Vertical", 0))
sketch7.addConstraint(Sketcher.Constraint("Horizontal", 1))
sketch7.addConstraint(Sketcher.Constraint("Vertical", 2))
sketch7.addConstraint(Sketcher.Constraint("Horizontal", 3))
sketch7.addConstraint(Sketcher.Constraint("Equal", 3, 0))
sketch7.addConstraint(Sketcher.Constraint("DistanceX", 1, 1, 1, 2, Q("0.64 mm")))
sketch7.addConstraint(Sketcher.Constraint("DistanceX", -1, 1, 0, 2, Q("2.22 mm")))
sketch7.addConstraint(Sketcher.Constraint("DistanceY", -1, 1, 0, 2, Q("1.59 mm")))
sketch7.setExpression("Constraints[9]", "Params.sketch7_width")
pad6 = body6.newObject("PartDesign::Pad", "Pad005")
pad6.Profile = sketch7
pad6.Type = "TwoLengths"
pad6.setExpression("Length", "Params.pad6_length")
pad6.setExpression("Length2", "Params.pad6_length2")
pad6.Reversed = True
doc.recompute()

chamfer5 = body6.newObject("PartDesign::Chamfer", "Chamfer004")
chamfer5.Base = (pad6, edges_at(pad6, [
    (2.22, 9, 1.27),
    (2.54, 9, 1.59),
    (2.86, 9, 1.27),
    (2.54, 9, 0.95),
    (2.22, -2.5, 1.27),
    (2.54, -2.5, 1.59),
    (2.86, -2.5, 1.27),
    (2.54, -2.5, 0.95),
]))
chamfer5.setExpression("Size", "Params.chamfer5_size")
body7 = doc.addObject("PartDesign::Body", "Body006")

# Sketch on XZ plane
sketch8 = body7.newObject("Sketcher::SketchObject", "Sketch007")
sketch8.AttachmentSupport = (doc.getObject("XZ_Plane006"), [""])
sketch8.MapMode = "FlatFace"
add_polygon(sketch8, [(-2.9, 0.9), (-2.9, 1.6), (-2.2, 1.6), (-2.2, 0.9)])  # lines 0-3
sketch8.addConstraint(Sketcher.Constraint("Vertical", 0))
sketch8.addConstraint(Sketcher.Constraint("Horizontal", 1))
sketch8.addConstraint(Sketcher.Constraint("Vertical", 2))
sketch8.addConstraint(Sketcher.Constraint("Horizontal", 3))
sketch8.addConstraint(Sketcher.Constraint("Equal", 3, 0))
sketch8.addConstraint(Sketcher.Constraint("DistanceX", 1, 1, 1, 2, Q("0.64 mm")))
sketch8.addConstraint(Sketcher.Constraint("DistanceX", 0, 2, -1, 1, Q("2.86 mm")))
sketch8.addConstraint(Sketcher.Constraint("DistanceY", -1, 1, 0, 2, Q("1.59 mm")))
sketch8.setExpression("Constraints[9]", "Params.sketch8_width")
pad7 = body7.newObject("PartDesign::Pad", "Pad006")
pad7.Profile = sketch8
pad7.Type = "TwoLengths"
pad7.setExpression("Length", "Params.pad7_length")
pad7.setExpression("Length2", "Params.pad7_length2")
pad7.Reversed = True
doc.recompute()

chamfer6 = body7.newObject("PartDesign::Chamfer", "Chamfer005")
chamfer6.Base = (pad7, edges_at(pad7, [
    (-2.86, 9, 1.27),
    (-2.54, 9, 1.59),
    (-2.22, 9, 1.27),
    (-2.54, 9, 0.95),
    (-2.86, -2.5, 1.27),
    (-2.54, -2.5, 1.59),
    (-2.22, -2.5, 1.27),
    (-2.54, -2.5, 0.95),
]))
chamfer6.setExpression("Size", "Params.chamfer6_size")

doc.recompute()
